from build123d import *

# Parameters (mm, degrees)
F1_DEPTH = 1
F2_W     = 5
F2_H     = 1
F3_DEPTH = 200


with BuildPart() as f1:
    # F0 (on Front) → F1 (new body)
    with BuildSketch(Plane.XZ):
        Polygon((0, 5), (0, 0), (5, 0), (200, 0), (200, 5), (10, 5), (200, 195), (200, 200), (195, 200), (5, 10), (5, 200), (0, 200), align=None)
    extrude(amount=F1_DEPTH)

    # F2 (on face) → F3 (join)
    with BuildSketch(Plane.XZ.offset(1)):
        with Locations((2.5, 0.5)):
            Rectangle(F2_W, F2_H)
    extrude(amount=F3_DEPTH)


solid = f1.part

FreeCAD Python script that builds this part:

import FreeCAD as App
import Part
import Sketcher

V = App.Vector
Q = App.Units.Quantity


def add_polygon(sketch, points):
    """Adds a closed chain of lines whose ends are joined by coincident constraints."""
    first, n = sketch.GeometryCount, len(points)
    for a, b in zip(points, points[1:] + points[:1]):
        sketch.addGeometry(Part.LineSegment(App.Vector(*a, 0), App.Vector(*b, 0)), False)
    for i in range(n):
        sketch.addConstraint(Sketcher.Constraint("Coincident", first + i, 2, first + (i + 1) % n, 1))

doc = App.newDocument("Part")
body = doc.addObject("PartDesign::Body", "Body")

sketch1 = body.newObject("Sketcher::SketchObject", "Sketch")
sketch1.AttachmentSupport = (doc.getObject("XZ_Plane"), [""])
sketch1.MapMode = "FlatFace"
add_polygon(sketch1, [(0, 0), (200, 0), (200, 5), (10, 5), (200, 195), (200, 200), (195, 200), (5, 10), (5, 200), (0, 200)])
sketch1.addConstraint(Sketcher.Constraint("Horizontal", 0))
sketch1.addConstraint(Sketcher.Constraint("Vertical", 1))
sketch1.addConstraint(Sketcher.Constraint("Horizontal", 2))
sketch1.addConstraint(Sketcher.Constraint("Vertical", 4))
sketch1.addConstraint(Sketcher.Constraint("Horizontal", 5))
sketch1.addConstraint(Sketcher.Constraint("Vertical", 7))
sketch1.addConstraint(Sketcher.Constraint("Horizontal", 8))
sketch1.addConstraint(Sketcher.Constraint("Vertical", 9))
sketch1.addConstraint(Sketcher.Constraint("Coincident", 9, 2, -1, 1))
sketch1.addConstraint(Sketcher.Constraint("Parallel", 3, 6))
sketch1.addConstraint(Sketcher.Constraint("Horizontal", 5, 2, 7, 2))
sketch1.addConstraint(Sketcher.Constraint("Vertical", 1, 2, 3, 2))
sketch1.addConstraint(Sketcher.Constraint("Equal", 5, 8))
sketch1.addConstraint(Sketcher.Constraint("Equal", 8, 1))
sketch1.addConstraint(Sketcher.Constraint("Equal", 1, 4))
sketch1.addConstraint(Sketcher.Constraint("Equal", 2, 7))
sketch1.addConstraint(Sketcher.Constraint("Equal", 0, 9))
sketch1.addConstraint(Sketcher.Constraint("DistanceX", 0, 1, 0, 2, Q("200 mm")))
sketch1.addConstraint(Sketcher.Constraint("DistanceX", 2, 2, 2, 1, Q("190 mm")))
pad1 = body.newObject("PartDesign::Pad", "Pad")
pad1.Profile = sketch1
pad1.Length = 1

sketch2 = body.newObject("Sketcher::SketchObject", "Sketch001")
sketch2.AttachmentSupport = (doc.getObject("XZ_Plane"), [""])
sketch2.MapMode = "FlatFace"
sketch2.AttachmentOffset = App.Placement(V(0, 0, 1), App.Rotation())
add_polygon(sketch2, [(0, 1), (0, 0), (5, 0), (5, 1)])
sketch2.addConstraint(Sketcher.Constraint("Vertical", 0))
sketch2.addConstraint(Sketcher.Constraint("Horizontal", 1))
sketch2.addConstraint(Sketcher.Constraint("Vertical", 2))
sketch2.addConstraint(Sketcher.Constraint("Horizontal", 3))
sketch2.addConstraint(Sketcher.Constraint("Coincident", 0, 2, -1, 1))
sketch2.addConstraint(Sketcher.Constraint("DistanceX", 1, 1, 1, 2, Q("5 mm")))
sketch2.addConstraint(Sketcher.Constraint("DistanceY", 0, 2, 0, 1, Q("1 mm")))
pad2 = body.newObject("PartDesign::Pad", "Pad001")
pad2.Profile = sketch2
pad2.Length = 200

doc.recompute()
